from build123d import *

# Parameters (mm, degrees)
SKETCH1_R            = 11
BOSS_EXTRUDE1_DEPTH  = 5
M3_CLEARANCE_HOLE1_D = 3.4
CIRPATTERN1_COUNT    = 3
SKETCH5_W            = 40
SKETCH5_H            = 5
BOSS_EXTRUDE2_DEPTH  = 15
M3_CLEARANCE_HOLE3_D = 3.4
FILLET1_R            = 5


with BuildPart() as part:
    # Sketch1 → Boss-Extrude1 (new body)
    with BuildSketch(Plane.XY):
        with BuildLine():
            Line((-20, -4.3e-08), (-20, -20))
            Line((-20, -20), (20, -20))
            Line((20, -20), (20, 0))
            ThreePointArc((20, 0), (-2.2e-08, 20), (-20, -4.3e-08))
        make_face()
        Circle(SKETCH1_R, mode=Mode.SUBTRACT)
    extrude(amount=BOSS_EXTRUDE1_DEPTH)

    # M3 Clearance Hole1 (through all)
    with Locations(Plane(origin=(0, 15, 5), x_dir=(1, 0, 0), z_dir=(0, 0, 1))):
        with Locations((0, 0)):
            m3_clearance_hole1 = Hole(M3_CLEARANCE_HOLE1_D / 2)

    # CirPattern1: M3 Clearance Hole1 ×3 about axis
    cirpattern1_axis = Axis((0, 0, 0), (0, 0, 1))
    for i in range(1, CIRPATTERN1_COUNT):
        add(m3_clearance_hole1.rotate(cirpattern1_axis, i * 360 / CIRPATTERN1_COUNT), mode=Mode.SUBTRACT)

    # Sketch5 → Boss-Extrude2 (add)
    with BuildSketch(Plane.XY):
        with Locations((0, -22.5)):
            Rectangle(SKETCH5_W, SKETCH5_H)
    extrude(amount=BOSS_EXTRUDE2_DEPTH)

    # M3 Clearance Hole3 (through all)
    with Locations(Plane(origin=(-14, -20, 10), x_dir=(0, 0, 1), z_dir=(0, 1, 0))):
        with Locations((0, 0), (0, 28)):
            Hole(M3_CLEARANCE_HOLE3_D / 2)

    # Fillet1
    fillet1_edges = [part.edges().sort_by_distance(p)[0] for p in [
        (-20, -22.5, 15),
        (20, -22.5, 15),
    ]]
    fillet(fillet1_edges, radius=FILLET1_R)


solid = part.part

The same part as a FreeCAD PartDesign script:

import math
import FreeCAD as App
import Part
import Sketcher
Q = App.Units.Quantity


def edges_at(feature, points):
    """Names of the edges that pass closest to the given points."""
    edges = feature.Shape.Edges
    near = lambda p: min(range(len(edges)), key=lambda i: edges[i].distToShape(Part.Vertex(*p))[0])
    return sorted({f"Edge{near(p) + 1}" for p in points})

doc = App.newDocument("Part")
body = doc.addObject("PartDesign::Body", "Body")

sketch1 = body.newObject("Sketcher::SketchObject", "Sketch")
sketch1.AttachmentSupport = (doc.getObject("XY_Plane"), [""])
sketch1.MapMode = "FlatFace"
sketch1.addGeometry(Part.LineSegment(App.Vector(-20, 0, 0), App.Vector(-20, -20, 0)), False)
sketch1.addGeometry(Part.LineSegment(App.Vector(-20, -20, 0), App.Vector(20, -20, 0)), False)
sketch1.addGeometry(Part.LineSegment(App.Vector(20, -20, 0), App.Vector(20, 0, 0)), False)
sketch1.addGeometry(Part.ArcOfCircle(Part.Circle(App.Vector(0, 0, 0), App.Vector(0, 0, 1), 20), math.radians(0), math.radians(180)), False)
sketch1.addGeometry(Part.Circle(App.Vector(0, 0, 0), App.Vector(0, 0, 1), 11), False)
sketch1.addConstraint(Sketcher.Constraint("Coincident", 0, 2, 1, 1))
sketch1.addConstraint(Sketcher.Constraint("Coincident", 1, 2, 2, 1))
sketch1.addConstraint(Sketcher.Constraint("Tangent", 2, 2, 3, 1))
sketch1.addConstraint(Sketcher.Constraint("Tangent", 3, 2, 0, 1))
sketch1.addConstraint(Sketcher.Constraint("Vertical", 0))
sketch1.addConstraint(Sketcher.Constraint("Horizontal", 1))
sketch1.addConstraint(Sketcher.Constraint("Vertical", 2))
sketch1.addConstraint(Sketcher.Constraint("Coincident", 3, 3, -1, 1))
sketch1.addConstraint(Sketcher.Constraint("Coincident", 4, 3, -1, 1))
sketch1.addConstraint(Sketcher.Constraint("Diameter", 4, Q("22 mm")))
sketch1.addConstraint(Sketcher.Constraint("Radius", 3, Q("20 mm")))
sketch1.addConstraint(Sketcher.Constraint("DistanceY", 0, 2, 0, 1, Q("20 mm")))
pad1 = body.newObject("PartDesign::Pad", "Pad")
pad1.Profile = sketch1
pad1.Length = 5

sketch2 = body.newObject("Sketcher::SketchObject", "Sketch001")
sketch2.AttachmentSupport = (doc.getObject("XY_Plane"), [""])
sketch2.MapMode = "FlatFace"
sketch2.AttachmentOffset = App.Placement(App.Vector(0, 0, 5), App.Rotation())
sketch2.addGeometry(Part.Circle(App.Vector(0, 15, 0), App.Vector(0, 0, 1), 1.7), False)
sketch2.addConstraint(Sketcher.Constraint("PointOnObject", 0, 3, -2))
sketch2.addConstraint(Sketcher.Constraint("Diameter", 0, Q("3.4 mm")))
sketch2.addConstraint(Sketcher.Constraint("DistanceY", -1, 1, 0, 3, Q("15 mm")))
doc.recompute()
hole = body.newObject("PartDesign::Hole", "Hole")
hole.Profile = sketch2
hole.ThreadType = "None"
hole.Diameter = 3.4
hole.DepthType = "ThroughAll"
doc.recompute()

polarpattern = body.newObject("PartDesign::PolarPattern", "PolarPattern")
polarpattern.Originals = [hole]
polarpattern.Axis = (doc.getObject("Z_Axis"), [""])
polarpattern.Angle = 360
polarpattern.Occurrences = 3
body.Tip = polarpattern

sketch3 = body.newObject("Sketcher::SketchObject", "Sketch002")
sketch3.AttachmentSupport = (doc.getObject("XY_Plane"), [""])
sketch3.MapMode = "FlatFace"
sketch3.addGeometry(Part.LineSegment(App.Vector(-20, -20, 0), App.Vector(-20, -25, 0)), False)
sketch3.addGeometry(Part.LineSegment(App.Vector(-20, -25, 0), App.Vector(20, -25, 0)), False)
sketch3.addGeometry(Part.LineSegment(App.Vector(20, -25, 0), App.Vector(20, -20, 0)), False)
sketch3.addGeometry(Part.LineSegment(App.Vector(20, -20, 0), App.Vector(-20, -20, 0)), False)
sketch3.addConstraint(Sketcher.Constraint("Coincident", 0, 2, 1, 1))
sketch3.addConstraint(Sketcher.Constraint("Coincident", 1, 2, 2, 1))
sketch3.addConstraint(Sketcher.Constraint("Coincident", 2, 2, 3, 1))
sketch3.addConstraint(Sketcher.Constraint("Coincident", 3, 2, 0, 1))
sketch3.addConstraint(Sketcher.Constraint("Vertical", 0))
sketch3.addConstraint(Sketcher.Constraint("Horizontal", 1))
sketch3.addConstraint(Sketcher.Constraint("Vertical", 2))
sketch3.addConstraint(Sketcher.Constraint("Horizontal", 3))
sketch3.addConstraint(Sketcher.Constraint("DistanceX", 1, 1, 1, 2, Q("40 mm")))
sketch3.addConstraint(Sketcher.Constraint("DistanceY", 0, 2, 0, 1, Q("5 mm")))
sketch3.addConstraint(Sketcher.Constraint("DistanceX", 0, 2, -1, 1, Q("20 mm")))
sketch3.addConstraint(Sketcher.Constraint("DistanceY", 0, 2, -1, 1, Q("25 mm")))
pad2 = body.newObject("PartDesign::Pad", "Pad001")
pad2.Profile = sketch3
pad2.Length = 15

sketch4 = body.newObject("Sketcher::SketchObject", "Sketch003")
sketch4.AttachmentSupport = (doc.getObject("XZ_Plane"), [""])
sketch4.MapMode = "FlatFace"
sketch4.AttachmentOffset = App.Placement(App.Vector(0, 0, 20), App.Rotation())
sketch4.addGeometry(Part.Circle(App.Vector(-14, 10, 0), App.Vector(0, 0, 1), 1.7), False)
sketch4.addGeometry(Part.Circle(App.Vector(14, 10, 0), App.Vector(0, 0, 1), 1.7), False)
sketch4.addConstraint(Sketcher.Constraint("Equal", 0, 1))
sketch4.addConstraint(Sketcher.Constraint("Symmetric", 0, 3, 1, 3, -2))
sketch4.addConstraint(Sketcher.Constraint("Diameter", 0, Q("3.4 mm")))
sketch4.addConstraint(Sketcher.Constraint("DistanceX", 0, 3, -1, 1, Q("14 mm")))
sketch4.addConstraint(Sketcher.Constraint("DistanceY", -1, 1, 0, 3, Q("10 mm")))
doc.recompute()
hole2 = body.newObject("PartDesign::Hole", "Hole001")
hole2.Profile = sketch4
hole2.ThreadType = "None"
hole2.Diameter = 3.4
hole2.DepthType = "ThroughAll"
hole2.Reversed = True
doc.recompute()

fillet = body.newObject("PartDesign::Fillet", "Fillet")
fillet.Base = (hole2, edges_at(hole2, [(-20, -22.5, 15), (20, -22.5, 15)]))
fillet.Radius = 5

doc.recompute()
